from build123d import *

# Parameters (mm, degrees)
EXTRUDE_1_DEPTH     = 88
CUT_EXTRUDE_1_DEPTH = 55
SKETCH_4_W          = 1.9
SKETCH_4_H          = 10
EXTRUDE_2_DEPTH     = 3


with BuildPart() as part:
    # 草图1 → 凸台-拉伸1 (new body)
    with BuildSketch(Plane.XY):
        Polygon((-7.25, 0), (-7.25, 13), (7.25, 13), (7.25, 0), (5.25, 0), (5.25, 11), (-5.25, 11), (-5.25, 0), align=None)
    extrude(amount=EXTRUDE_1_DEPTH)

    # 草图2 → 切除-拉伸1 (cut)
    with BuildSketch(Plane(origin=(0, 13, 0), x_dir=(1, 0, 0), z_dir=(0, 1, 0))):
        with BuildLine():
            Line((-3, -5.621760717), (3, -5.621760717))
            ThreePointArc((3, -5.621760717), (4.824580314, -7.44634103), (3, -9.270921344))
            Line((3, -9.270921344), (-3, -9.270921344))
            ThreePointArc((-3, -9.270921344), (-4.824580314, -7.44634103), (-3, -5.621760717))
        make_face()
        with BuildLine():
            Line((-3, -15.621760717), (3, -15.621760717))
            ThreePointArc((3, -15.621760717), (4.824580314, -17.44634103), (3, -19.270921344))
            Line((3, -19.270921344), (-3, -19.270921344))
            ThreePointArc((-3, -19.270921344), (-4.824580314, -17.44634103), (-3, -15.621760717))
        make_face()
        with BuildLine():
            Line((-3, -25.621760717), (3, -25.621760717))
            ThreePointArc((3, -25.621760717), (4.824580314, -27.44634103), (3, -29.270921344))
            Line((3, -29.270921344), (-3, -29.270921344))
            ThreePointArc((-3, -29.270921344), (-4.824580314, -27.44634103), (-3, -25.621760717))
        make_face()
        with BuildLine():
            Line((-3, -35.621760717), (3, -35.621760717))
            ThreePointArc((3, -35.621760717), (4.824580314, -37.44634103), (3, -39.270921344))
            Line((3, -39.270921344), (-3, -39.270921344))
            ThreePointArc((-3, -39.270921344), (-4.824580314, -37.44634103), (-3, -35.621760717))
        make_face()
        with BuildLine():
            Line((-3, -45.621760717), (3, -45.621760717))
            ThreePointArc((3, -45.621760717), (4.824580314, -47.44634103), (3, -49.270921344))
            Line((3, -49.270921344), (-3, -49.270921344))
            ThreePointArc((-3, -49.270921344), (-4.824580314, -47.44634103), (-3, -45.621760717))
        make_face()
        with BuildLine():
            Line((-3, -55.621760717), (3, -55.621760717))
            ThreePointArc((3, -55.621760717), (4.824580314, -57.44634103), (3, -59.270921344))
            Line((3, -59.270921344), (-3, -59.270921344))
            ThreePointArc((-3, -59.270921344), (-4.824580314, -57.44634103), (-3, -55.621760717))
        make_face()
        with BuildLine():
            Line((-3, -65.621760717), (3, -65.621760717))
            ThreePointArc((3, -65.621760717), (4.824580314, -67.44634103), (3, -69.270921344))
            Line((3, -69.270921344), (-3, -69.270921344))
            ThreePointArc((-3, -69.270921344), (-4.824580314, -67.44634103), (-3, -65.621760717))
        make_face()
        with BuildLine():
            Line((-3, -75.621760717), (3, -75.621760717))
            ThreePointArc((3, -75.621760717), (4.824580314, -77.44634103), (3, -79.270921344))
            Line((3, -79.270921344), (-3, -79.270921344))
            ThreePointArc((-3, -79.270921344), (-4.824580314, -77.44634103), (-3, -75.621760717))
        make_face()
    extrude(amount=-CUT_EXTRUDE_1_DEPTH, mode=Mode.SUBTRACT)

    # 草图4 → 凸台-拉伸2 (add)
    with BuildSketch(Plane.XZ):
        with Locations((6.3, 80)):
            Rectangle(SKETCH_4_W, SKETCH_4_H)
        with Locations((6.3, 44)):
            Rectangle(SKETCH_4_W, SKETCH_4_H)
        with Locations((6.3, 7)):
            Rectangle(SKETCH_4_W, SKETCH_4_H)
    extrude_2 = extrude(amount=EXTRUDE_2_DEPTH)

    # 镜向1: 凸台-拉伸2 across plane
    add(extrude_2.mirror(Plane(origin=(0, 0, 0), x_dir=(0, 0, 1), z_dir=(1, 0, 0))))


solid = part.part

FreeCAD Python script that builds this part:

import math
import FreeCAD as App
import Part
import Sketcher

doc = App.newDocument("Part")
body = doc.addObject("PartDesign::Body", "Body")

sketch1 = doc.addObject("Sketcher::SketchObject", "Sketch")
body.addObject(sketch1)
sketch1.AttachmentSupport = (doc.XY_Plane, [""])
sketch1.MapMode = "FlatFace"
sketch1.addGeometry([
    Part.LineSegment(App.Vector(-7.2, 13, 0), App.Vector(-7.2, 0, 0)),
    Part.LineSegment(App.Vector(-7.2, 0, 0), App.Vector(-5.2, 0, 0)),
    Part.LineSegment(App.Vector(-5.2, 0, 0), App.Vector(-5.2, 11, 0)),
    Part.LineSegment(App.Vector(-5.2, 11, 0), App.Vector(5.2, 11, 0)),
    Part.LineSegment(App.Vector(5.2, 11, 0), App.Vector(5.2, 0, 0)),
    Part.LineSegment(App.Vector(5.2, 0, 0), App.Vector(7.2, 0, 0)),
    Part.LineSegment(App.Vector(7.2, 0, 0), App.Vector(7.2, 13, 0)),
    Part.LineSegment(App.Vector(7.2, 13, 0), App.Vector(-7.2, 13, 0)),
], False)
sketch1.addConstraint([
    Sketcher.Constraint("Coincident", 0, 2, 1, 1),
    Sketcher.Constraint("Coincident", 1, 2, 2, 1),
    Sketcher.Constraint("Coincident", 2, 2, 3, 1),
    Sketcher.Constraint("Coincident", 3, 2, 4, 1),
    Sketcher.Constraint("Coincident", 4, 2, 5, 1),
    Sketcher.Constraint("Coincident", 5, 2, 6, 1),
    Sketcher.Constraint("Coincident", 6, 2, 7, 1),
    Sketcher.Constraint("Coincident", 7, 2, 0, 1),
    Sketcher.Constraint("Vertical", 0),
    Sketcher.Constraint("Horizontal", 1),
    Sketcher.Constraint("Vertical", 2),
    Sketcher.Constraint("Horizontal", 3),
    Sketcher.Constraint("Vertical", 4),
    Sketcher.Constraint("Horizontal", 5),
    Sketcher.Constraint("Vertical", 6),
    Sketcher.Constraint("Horizontal", 7),
    Sketcher.Constraint("Symmetric", 1, 2, 4, 2, -1, 1),
    Sketcher.Constraint("Symmetric", 0, 2, 5, 2, -2),
    Sketcher.Constraint("DistanceX", 1, 1, 1, 2, 2.0),
    Sketcher.Constraint("DistanceY", 0, 2, 0, 1, 13.0),
    Sketcher.Constraint("DistanceY", 2, 1, 2, 2, 11.0),
    Sketcher.Constraint("DistanceX", 3, 1, 3, 2, 10.5),
])
pad1 = doc.addObject("PartDesign::Pad", "Pad")
body.addObject(pad1)
pad1.Profile = sketch1
pad1.Length = 88

sketch2 = doc.addObject("Sketcher::SketchObject", "Sketch001")
body.addObject(sketch2)
sketch2.AttachmentSupport = (doc.XZ_Plane, [""])
sketch2.MapMode = "FlatFace"
sketch2.AttachmentOffset = App.Placement(App.Vector(0, 0, -13), App.Rotation())
sketch2.addGeometry([
    Part.LineSegment(App.Vector(3, 5.6, 0), App.Vector(-3, 5.6, 0)),
    Part.ArcOfCircle(Part.Circle(App.Vector(-3, 7.4, 0), App.Vector(0, 0, 1), 1.8), math.radians(90), math.radians(270)),
    Part.LineSegment(App.Vector(-3, 9.3, 0), App.Vector(3, 9.3, 0)),
    Part.ArcOfCircle(Part.Circle(App.Vector(3, 7.4, 0), App.Vector(0, 0, 1), 1.8), math.radians(-90), math.radians(90)),
    Part.LineSegment(App.Vector(3, 15.6, 0), App.Vector(-3, 15.6, 0)),
    Part.ArcOfCircle(Part.Circle(App.Vector(-3, 17.4, 0), App.Vector(0, 0, 1), 1.8), math.radians(90), math.radians(270)),
    Part.LineSegment(App.Vector(-3, 19.3, 0), App.Vector(3, 19.3, 0)),
    Part.ArcOfCircle(Part.Circle(App.Vector(3, 17.4, 0), App.Vector(0, 0, 1), 1.8), math.radians(-90), math.radians(90)),
    Part.LineSegment(App.Vector(3, 25.6, 0), App.Vector(-3, 25.6, 0)),
    Part.ArcOfCircle(Part.Circle(App.Vector(-3, 27.4, 0), App.Vector(0, 0, 1), 1.8), math.radians(90), math.radians(270)),
    Part.LineSegment(App.Vector(-3, 29.3, 0), App.Vector(3, 29.3, 0)),
    Part.ArcOfCircle(Part.Circle(App.Vector(3, 27.4, 0), App.Vector(0, 0, 1), 1.8), math.radians(-90), math.radians(90)),
    Part.LineSegment(App.Vector(3, 35.6, 0), App.Vector(-3, 35.6, 0)),
    Part.ArcOfCircle(Part.Circle(App.Vector(-3, 37.4, 0), App.Vector(0, 0, 1), 1.8), math.radians(90), math.radians(270)),
    Part.LineSegment(App.Vector(-3, 39.3, 0), App.Vector(3, 39.3, 0)),
    Part.ArcOfCircle(Part.Circle(App.Vector(3, 37.4, 0), App.Vector(0, 0, 1), 1.8), math.radians(-90), math.radians(90)),
    Part.LineSegment(App.Vector(3, 45.6, 0), App.Vector(-3, 45.6, 0)),
    Part.ArcOfCircle(Part.Circle(App.Vector(-3, 47.4, 0), App.Vector(0, 0, 1), 1.8), math.radians(90), math.radians(270)),
    Part.LineSegment(App.Vector(-3, 49.3, 0), App.Vector(3, 49.3, 0)),
    Part.ArcOfCircle(Part.Circle(App.Vector(3, 47.4, 0), App.Vector(0, 0, 1), 1.8), math.radians(-90), math.radians(90)),
    Part.LineSegment(App.Vector(3, 55.6, 0), App.Vector(-3, 55.6, 0)),
    Part.ArcOfCircle(Part.Circle(App.Vector(-3, 57.4, 0), App.Vector(0, 0, 1), 1.8), math.radians(90), math.radians(270)),
    Part.LineSegment(App.Vector(-3, 59.3, 0), App.Vector(3, 59.3, 0)),
    Part.ArcOfCircle(Part.Circle(App.Vector(3, 57.4, 0), App.Vector(0, 0, 1), 1.8), math.radians(-90), math.radians(90)),
    Part.LineSegment(App.Vector(3, 65.6, 0), App.Vector(-3, 65.6, 0)),
    Part.ArcOfCircle(Part.Circle(App.Vector(-3, 67.4, 0), App.Vector(0, 0, 1), 1.8), math.radians(90), math.radians(270)),
    Part.LineSegment(App.Vector(-3, 69.3, 0), App.Vector(3, 69.3, 0)),
    Part.ArcOfCircle(Part.Circle(App.Vector(3, 67.4, 0), App.Vector(0, 0, 1), 1.8), math.radians(-90), math.radians(90)),
    Part.LineSegment(App.Vector(3, 75.6, 0), App.Vector(-3, 75.6, 0)),
    Part.ArcOfCircle(Part.Circle(App.Vector(-3, 77.4, 0), App.Vector(0, 0, 1), 1.8), math.radians(90), math.radians(270)),
    Part.LineSegment(App.Vector(-3, 79.3, 0), App.Vector(3, 79.3, 0)),
    Part.ArcOfCircle(Part.Circle(App.Vector(3, 77.4, 0), App.Vector(0, 0, 1), 1.8), math.radians(-90), math.radians(90)),
], False)
sketch2.addConstraint([
    Sketcher.Constraint("Tangent", 0, 2, 1, 2),
    Sketcher.Constraint("Tangent", 1, 1, 2, 1),
    Sketcher.Constraint("Tangent", 2, 2, 3, 2),
    Sketcher.Constraint("Tangent", 3, 1, 0, 1),
    Sketcher.Constraint("Tangent", 4, 2, 5, 2),
    Sketcher.Constraint("Tangent", 5, 1, 6, 1),
    Sketcher.Constraint("Tangent", 6, 2, 7, 2),
    Sketcher.Constraint("Tangent", 7, 1, 4, 1),
    Sketcher.Constraint("Tangent", 8, 2, 9, 2),
    Sketcher.Constraint("Tangent", 9, 1, 10, 1),
    Sketcher.Constraint("Tangent", 10, 2, 11, 2),
    Sketcher.Constraint("Tangent", 11, 1, 8, 1),
    Sketcher.Constraint("Tangent", 12, 2, 13, 2),
    Sketcher.Constraint("Tangent", 13, 1, 14, 1),
    Sketcher.Constraint("Tangent", 14, 2, 15, 2),
    Sketcher.Constraint("Tangent", 15, 1, 12, 1),
    Sketcher.Constraint("Tangent", 16, 2, 17, 2),
    Sketcher.Constraint("Tangent", 17, 1, 18, 1),
    Sketcher.Constraint("Tangent", 18, 2, 19, 2),
    Sketcher.Constraint("Tangent", 19, 1, 16, 1),
    Sketcher.Constraint("Tangent", 20, 2, 21, 2),
    Sketcher.Constraint("Tangent", 21, 1, 22, 1),
    Sketcher.Constraint("Tangent", 22, 2, 23, 2),
    Sketcher.Constraint("Tangent", 23, 1, 20, 1),
    Sketcher.Constraint("Tangent", 24, 2, 25, 2),
    Sketcher.Constraint("Tangent", 25, 1, 26, 1),
    Sketcher.Constraint("Tangent", 26, 2, 27, 2),
    Sketcher.Constraint("Tangent", 27, 1, 24, 1),
    Sketcher.Constraint("Tangent", 28, 2, 29, 2),
    Sketcher.Constraint("Tangent", 29, 1, 30, 1),
    Sketcher.Constraint("Tangent", 30, 2, 31, 2),
    Sketcher.Constraint("Tangent", 31, 1, 28, 1),
    Sketcher.Constraint("Horizontal", 0),
    Sketcher.Constraint("Horizontal", 2),
    Sketcher.Constraint("Horizontal", 4),
    Sketcher.Constraint("Horizontal", 6),
    Sketcher.Constraint("Horizontal", 8),
    Sketcher.Constraint("Horizontal", 10),
    Sketcher.Constraint("Horizontal", 12),
    Sketcher.Constraint("Horizontal", 14),
    Sketcher.Constraint("Horizontal", 16),
    Sketcher.Constraint("Horizontal", 18),
    Sketcher.Constraint("Horizontal", 20),
    Sketcher.Constraint("Horizontal", 22),
    Sketcher.Constraint("Horizontal", 24),
    Sketcher.Constraint("Horizontal", 26),
    Sketcher.Constraint("Horizontal", 28),
    Sketcher.Constraint("Horizontal", 30),
    Sketcher.Constraint("Equal", 3, 5),
    Sketcher.Constraint("Equal", 7, 9),
    Sketcher.Constraint("Equal", 11, 13),
    Sketcher.Constraint("Equal", 15, 17),
    Sketcher.Constraint("Equal", 19, 21),
    Sketcher.Constraint("Equal", 23, 25),
    Sketcher.Constraint("Equal", 27, 29),
    Sketcher.Constraint("Vertical", 1, 3, 5, 3),
    Sketcher.Constraint("Vertical", 3, 3, 7, 3),
    Sketcher.Constraint("Vertical", 5, 3, 9, 3),
    Sketcher.Constraint("Vertical", 7, 3, 11, 3),
    Sketcher.Constraint("Vertical", 9, 3, 13, 3),
    Sketcher.Constraint("Vertical", 11, 3, 15, 3),
    Sketcher.Constraint("Vertical", 13, 3, 17, 3),
    Sketcher.Constraint("Vertical", 15, 3, 19, 3),
    Sketcher.Constraint("Vertical", 17, 3, 21, 3),
    Sketcher.Constraint("Vertical", 19, 3, 23, 3),
    Sketcher.Constraint("Vertical", 21, 3, 25, 3),
    Sketcher.Constraint("Vertical", 23, 3, 27, 3),
    Sketcher.Constraint("Vertical", 25, 3, 29, 3),
    Sketcher.Constraint("Vertical", 27, 3, 31, 3),
    Sketcher.Constraint("DistanceX", 0, 2, 0, 1, 6.0),
    Sketcher.Constraint("DistanceX", 1, 3, -1, 1, 3.0),
    Sketcher.Constraint("DistanceY", 1, 3, 5, 3, 10.0),
    Sketcher.Constraint("DistanceY", 5, 3, 9, 3, 10.0),
    Sketcher.Constraint("DistanceY", 9, 3, 13, 3, 10.0),
    Sketcher.Constraint("DistanceY", 13, 3, 17, 3, 10.0),
    Sketcher.Constraint("DistanceY", 17, 3, 21, 3, 10.0),
    Sketcher.Constraint("DistanceY", 21, 3, 25, 3, 10.0),
    Sketcher.Constraint("DistanceY", 25, 3, 29, 3, 10.0),
    Sketcher.Constraint("Radius", 1, 1.82458),
    Sketcher.Constraint("DistanceY", -1, 1, 1, 3, 7.446341),
])
pocket1 = doc.addObject("PartDesign::Pocket", "Pocket")
body.addObject(pocket1)
pocket1.Profile = sketch2
pocket1.Length = 55
pocket1.Reversed = True

sketch3 = doc.addObject("Sketcher::SketchObject", "Sketch002")
body.addObject(sketch3)
sketch3.AttachmentSupport = (doc.XZ_Plane, [""])
sketch3.MapMode = "FlatFace"
sketch3.addGeometry([
    Part.LineSegment(App.Vector(5.3, 85, 0), App.Vector(5.3, 75, 0)),
    Part.LineSegment(App.Vector(5.3, 75, 0), App.Vector(7.2, 75, 0)),
    Part.LineSegment(App.Vector(7.2, 75, 0), App.Vector(7.2, 85, 0)),
    Part.LineSegment(App.Vector(7.2, 85, 0), App.Vector(5.3, 85, 0)),
    Part.LineSegment(App.Vector(5.3, 49, 0), App.Vector(5.3, 39, 0)),
    Part.LineSegment(App.Vector(5.3, 39, 0), App.Vector(7.2, 39, 0)),
    Part.LineSegment(App.Vector(7.2, 39, 0), App.Vector(7.2, 49, 0)),
    Part.LineSegment(App.Vector(7.2, 49, 0), App.Vector(5.3, 49, 0)),
    Part.LineSegment(App.Vector(5.3, 12, 0), App.Vector(5.3, 2, 0)),
    Part.LineSegment(App.Vector(5.3, 2, 0), App.Vector(7.2, 2, 0)),
    Part.LineSegment(App.Vector(7.2, 2, 0), App.Vector(7.2, 12, 0)),
    Part.LineSegment(App.Vector(7.2, 12, 0), App.Vector(5.3, 12, 0)),
], False)
sketch3.addConstraint([
    Sketcher.Constraint("Coincident", 0, 2, 1, 1),
    Sketcher.Constraint("Coincident", 1, 2, 2, 1),
    Sketcher.Constraint("Coincident", 2, 2, 3, 1),
    Sketcher.Constraint("Coincident", 3, 2, 0, 1),
    Sketcher.Constraint("Coincident", 4, 2, 5, 1),
    Sketcher.Constraint("Coincident", 5, 2, 6, 1),
    Sketcher.Constraint("Coincident", 6, 2, 7, 1),
    Sketcher.Constraint("Coincident", 7, 2, 4, 1),
    Sketcher.Constraint("Coincident", 8, 2, 9, 1),
    Sketcher.Constraint("Coincident", 9, 2, 10, 1),
    Sketcher.Constraint("Coincident", 10, 2, 11, 1),
    Sketcher.Constraint("Coincident", 11, 2, 8, 1),
    Sketcher.Constraint("Vertical", 0),
    Sketcher.Constraint("Horizontal", 1),
    Sketcher.Constraint("Vertical", 2),
    Sketcher.Constraint("Horizontal", 3),
    Sketcher.Constraint("Vertical", 4),
    Sketcher.Constraint("Horizontal", 5),
    Sketcher.Constraint("Vertical", 6),
    Sketcher.Constraint("Horizontal", 7),
    Sketcher.Constraint("Vertical", 8),
    Sketcher.Constraint("Horizontal", 9),
    Sketcher.Constraint("Vertical", 10),
    Sketcher.Constraint("Horizontal", 11),
    Sketcher.Constraint("Vertical", 3, 2, 4, 2),
    Sketcher.Constraint("Vertical", 2, 2, 5, 2),
    Sketcher.Constraint("Vertical", 7, 2, 8, 2),
    Sketcher.Constraint("Vertical", 6, 2, 9, 2),
    Sketcher.Constraint("Equal", 2, 4),
    Sketcher.Constraint("Equal", 6, 8),
    Sketcher.Constraint("DistanceY", 0, 2, 0, 1, 10.0),
    Sketcher.Constraint("DistanceX", 1, 1, 1, 2, 1.9),
    Sketcher.Constraint("DistanceY", -1, 1, 0, 2, 75.0),
    Sketcher.Constraint("DistanceY", -1, 1, 4, 2, 39.0),
    Sketcher.Constraint("DistanceY", -1, 1, 8, 2, 2.0),
    Sketcher.Constraint("DistanceX", -1, 1, 0, 2, 5.35),
])
pad2 = doc.addObject("PartDesign::Pad", "Pad001")
body.addObject(pad2)
pad2.Profile = sketch3
pad2.Length = 3
doc.recompute()

mirrored = doc.addObject("PartDesign::Mirrored", "Mirrored")
body.addObject(mirrored)
mirrored.Originals = [pad2]
mirrored.MirrorPlane = (doc.YZ_Plane, [""])
body.Tip = mirrored

doc.recompute()
